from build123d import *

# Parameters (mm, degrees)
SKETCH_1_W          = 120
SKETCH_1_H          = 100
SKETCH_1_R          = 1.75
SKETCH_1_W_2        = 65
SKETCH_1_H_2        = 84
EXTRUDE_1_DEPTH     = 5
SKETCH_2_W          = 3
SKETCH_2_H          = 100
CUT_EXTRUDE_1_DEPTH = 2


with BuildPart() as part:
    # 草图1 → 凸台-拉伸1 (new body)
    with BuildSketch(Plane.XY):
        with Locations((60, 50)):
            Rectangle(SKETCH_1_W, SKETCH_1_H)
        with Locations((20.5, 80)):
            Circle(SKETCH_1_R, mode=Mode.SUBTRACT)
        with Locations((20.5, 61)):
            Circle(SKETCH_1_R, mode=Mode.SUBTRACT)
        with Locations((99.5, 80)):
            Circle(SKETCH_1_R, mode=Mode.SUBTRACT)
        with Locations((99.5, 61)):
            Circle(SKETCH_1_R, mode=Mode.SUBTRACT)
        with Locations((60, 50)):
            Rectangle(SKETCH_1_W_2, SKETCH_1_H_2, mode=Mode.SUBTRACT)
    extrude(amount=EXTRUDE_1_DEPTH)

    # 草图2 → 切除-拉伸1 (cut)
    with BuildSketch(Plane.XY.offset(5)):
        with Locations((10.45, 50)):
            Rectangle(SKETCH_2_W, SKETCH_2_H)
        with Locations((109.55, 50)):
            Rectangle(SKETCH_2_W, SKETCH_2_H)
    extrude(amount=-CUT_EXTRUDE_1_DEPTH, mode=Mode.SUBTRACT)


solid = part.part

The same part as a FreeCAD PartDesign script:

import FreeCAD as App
import Part
import Sketcher

V = App.Vector
Q = App.Units.Quantity

doc = App.newDocument("Part")
body = doc.addObject("PartDesign::Body", "Body")

# Sketch on XY plane
sketch1 = body.newObject("Sketcher::SketchObject", "Sketch")
sketch1.AttachmentSupport = (doc.getObject("XY_Plane"), [""])
sketch1.MapMode = "FlatFace"
sketch1.addGeometry(Part.LineSegment(V(0, 100, 0), V(0, 0, 0)), False)
sketch1.addGeometry(Part.LineSegment(V(0, 0, 0), V(120, 0, 0)), False)
sketch1.addGeometry(Part.LineSegment(V(120, 0, 0), V(120, 100, 0)), False)
sketch1.addGeometry(Part.LineSegment(V(120, 100, 0), V(0, 100, 0)), False)
sketch1.addGeometry(Part.Circle(V(20.5, 61, 0), V(0, 0, 1), 1.8), False)
sketch1.addGeometry(Part.Circle(V(20.5, 80, 0), V(0, 0, 1), 1.8), False)
sketch1.addGeometry(Part.LineSegment(V(92.5, 8, 0), V(27.5, 8, 0)), False)
sketch1.addGeometry(Part.LineSegment(V(27.5, 8, 0), V(27.5, 92, 0)), False)
sketch1.addGeometry(Part.LineSegment(V(27.5, 92, 0), V(92.5, 92, 0)), False)
sketch1.addGeometry(Part.LineSegment(V(92.5, 92, 0), V(92.5, 8, 0)), False)
sketch1.addGeometry(Part.Circle(V(99.5, 61, 0), V(0, 0, 1), 1.8), False)
sketch1.addGeometry(Part.Circle(V(99.5, 80, 0), V(0, 0, 1), 1.8), False)
sketch1.addConstraint(Sketcher.Constraint("Coincident", 0, 2, 1, 1))
sketch1.addConstraint(Sketcher.Constraint("Coincident", 1, 2, 2, 1))
sketch1.addConstraint(Sketcher.Constraint("Coincident", 2, 2, 3, 1))
sketch1.addConstraint(Sketcher.Constraint("Coincident", 3, 2, 0, 1))
sketch1.addConstraint(Sketcher.Constraint("Coincident", 6, 2, 7, 1))
sketch1.addConstraint(Sketcher.Constraint("Coincident", 7, 2, 8, 1))
sketch1.addConstraint(Sketcher.Constraint("Coincident", 8, 2, 9, 1))
sketch1.addConstraint(Sketcher.Constraint("Coincident", 9, 2, 6, 1))
sketch1.addConstraint(Sketcher.Constraint("Vertical", 0))
sketch1.addConstraint(Sketcher.Constraint("Horizontal", 1))
sketch1.addConstraint(Sketcher.Constraint("Vertical", 2))
sketch1.addConstraint(Sketcher.Constraint("Horizontal", 3))
sketch1.addConstraint(Sketcher.Constraint("Horizontal", 6))
sketch1.addConstraint(Sketcher.Constraint("Vertical", 7))
sketch1.addConstraint(Sketcher.Constraint("Horizontal", 8))
sketch1.addConstraint(Sketcher.Constraint("Vertical", 9))
sketch1.addConstraint(Sketcher.Constraint("Coincident", 0, 2, -1, 1))
sketch1.addConstraint(Sketcher.Constraint("Equal", 4, 5))
sketch1.addConstraint(Sketcher.Constraint("Equal", 5, 10))
sketch1.addConstraint(Sketcher.Constraint("Equal", 10, 11))
sketch1.addConstraint(Sketcher.Constraint("Horizontal", 4, 3, 10, 3))
sketch1.addConstraint(Sketcher.Constraint("Horizontal", 5, 3, 11, 3))
sketch1.addConstraint(Sketcher.Constraint("Vertical", 4, 3, 5, 3))
sketch1.addConstraint(Sketcher.Constraint("Vertical", 10, 3, 11, 3))
sketch1.addConstraint(Sketcher.Constraint("Diameter", 4, Q("3.5 mm")))
sketch1.addConstraint(Sketcher.Constraint("DistanceX", 1, 1, 1, 2, Q("120 mm")))
sketch1.addConstraint(Sketcher.Constraint("DistanceX", 6, 2, 6, 1, Q("65 mm")))
sketch1.addConstraint(Sketcher.Constraint("DistanceY", 0, 2, 0, 1, Q("100 mm")))
sketch1.addConstraint(Sketcher.Constraint("DistanceY", 7, 1, 7, 2, Q("84 mm")))
sketch1.addConstraint(Sketcher.Constraint("DistanceY", -1, 1, 4, 3, Q("61 mm")))
sketch1.addConstraint(Sketcher.Constraint("DistanceY", -1, 1, 5, 3, Q("80 mm")))
sketch1.addConstraint(Sketcher.Constraint("DistanceY", -1, 1, 6, 2, Q("8 mm")))
sketch1.addConstraint(Sketcher.Constraint("DistanceX", 4, 3, 10, 3, Q("79 mm")))
sketch1.addConstraint(Sketcher.Constraint("DistanceX", 4, 3, 6, 2, Q("7 mm")))
sketch1.addConstraint(Sketcher.Constraint("DistanceX", -1, 1, 4, 3, Q("20.5 mm")))
pad1 = body.newObject("PartDesign::Pad", "Pad")
pad1.Profile = sketch1
pad1.Length = 5

# Sketch on XY plane
sketch2 = body.newObject("Sketcher::SketchObject", "Sketch001")
sketch2.AttachmentSupport = (doc.getObject("XY_Plane"), [""])
sketch2.MapMode = "FlatFace"
sketch2.AttachmentOffset = App.Placement(V(0, 0, 5), App.Rotation())
sketch2.addGeometry(Part.LineSegment(V(8.9, 100, 0), V(8.9, 0, 0)), False)
sketch2.addGeometry(Part.LineSegment(V(8.9, 0, 0), V(11.9, 0, 0)), False)
sketch2.addGeometry(Part.LineSegment(V(11.9, 0, 0), V(11.9, 100, 0)), False)
sketch2.addGeometry(Part.LineSegment(V(11.9, 100, 0), V(8.9, 100, 0)), False)
sketch2.addGeometry(Part.LineSegment(V(108, 100, 0), V(108, 0, 0)), False)
sketch2.addGeometry(Part.LineSegment(V(108, 0, 0), V(111, 0, 0)), False)
sketch2.addGeometry(Part.LineSegment(V(111, 0, 0), V(111, 100, 0)), False)
sketch2.addGeometry(Part.LineSegment(V(111, 100, 0), V(108, 100, 0)), False)
sketch2.addConstraint(Sketcher.Constraint("Coincident", 0, 2, 1, 1))
sketch2.addConstraint(Sketcher.Constraint("Coincident", 1, 2, 2, 1))
sketch2.addConstraint(Sketcher.Constraint("Coincident", 2, 2, 3, 1))
sketch2.addConstraint(Sketcher.Constraint("Coincident", 3, 2, 0, 1))
sketch2.addConstraint(Sketcher.Constraint("Coincident", 4, 2, 5, 1))
sketch2.addConstraint(Sketcher.Constraint("Coincident", 5, 2, 6, 1))
sketch2.addConstraint(Sketcher.Constraint("Coincident", 6, 2, 7, 1))
sketch2.addConstraint(Sketcher.Constraint("Coincident", 7, 2, 4, 1))
sketch2.addConstraint(Sketcher.Constraint("Vertical", 0))
sketch2.addConstraint(Sketcher.Constraint("Horizontal", 1))
sketch2.addConstraint(Sketcher.Constraint("Vertical", 2))
sketch2.addConstraint(Sketcher.Constraint("Horizontal", 3))
sketch2.addConstraint(Sketcher.Constraint("Vertical", 4))
sketch2.addConstraint(Sketcher.Constraint("Horizontal", 5))
sketch2.addConstraint(Sketcher.Constraint("Vertical", 6))
sketch2.addConstraint(Sketcher.Constraint("Horizontal", 7))
sketch2.addConstraint(Sketcher.Constraint("PointOnObject", 0, 2, -1))
sketch2.addConstraint(Sketcher.Constraint("PointOnObject", 4, 2, -1))
sketch2.addConstraint(Sketcher.Constraint("Horizontal", 3, 2, 6, 2))
sketch2.addConstraint(Sketcher.Constraint("Equal", 3, 5))
sketch2.addConstraint(Sketcher.Constraint("DistanceX", 1, 1, 1, 2, Q("3 mm")))
sketch2.addConstraint(Sketcher.Constraint("DistanceY", 0, 2, 0, 1, Q("100 mm")))
sketch2.addConstraint(Sketcher.Constraint("DistanceX", 1, 2, 4, 2, Q("96.1 mm")))
sketch2.addConstraint(Sketcher.Constraint("DistanceX", -1, 1, 0, 2, Q("8.95 mm")))
pocket1 = body.newObject("PartDesign::Pocket", "Pocket")
pocket1.Profile = sketch2
pocket1.Length = 2

doc.recompute()
